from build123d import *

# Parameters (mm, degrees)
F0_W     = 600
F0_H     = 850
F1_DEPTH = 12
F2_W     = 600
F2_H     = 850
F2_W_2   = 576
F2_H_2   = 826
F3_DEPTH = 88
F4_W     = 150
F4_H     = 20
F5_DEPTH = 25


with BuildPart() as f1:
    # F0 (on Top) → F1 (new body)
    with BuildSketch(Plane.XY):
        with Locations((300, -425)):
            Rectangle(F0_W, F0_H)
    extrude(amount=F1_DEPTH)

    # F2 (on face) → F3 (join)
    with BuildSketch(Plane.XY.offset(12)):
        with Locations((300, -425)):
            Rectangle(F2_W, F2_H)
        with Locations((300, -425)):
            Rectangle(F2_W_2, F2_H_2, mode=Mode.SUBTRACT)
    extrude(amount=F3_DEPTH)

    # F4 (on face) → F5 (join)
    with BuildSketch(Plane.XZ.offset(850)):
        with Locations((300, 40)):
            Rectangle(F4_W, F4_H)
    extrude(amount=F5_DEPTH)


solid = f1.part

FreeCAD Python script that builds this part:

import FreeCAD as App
import Part
import Sketcher
from FreeCAD import Vector
Q = App.Units.Quantity

doc = App.newDocument("Part")
body = doc.addObject("PartDesign::Body", "Body")

# Sketch on XY plane
sketch1 = body.newObject("Sketcher::SketchObject", "Sketch")
sketch1.AttachmentSupport = (doc.getObject("XY_Plane"), [""])
sketch1.MapMode = "FlatFace"
sketch1.addGeometry([
    Part.LineSegment(Vector(0, 0, 0), Vector(0, -850, 0)),
    Part.LineSegment(Vector(0, -850, 0), Vector(600, -850, 0)),
    Part.LineSegment(Vector(600, -850, 0), Vector(600, 0, 0)),
    Part.LineSegment(Vector(600, 0, 0), Vector(0, 0, 0)),
], False)
sketch1.addConstraint([
    Sketcher.Constraint("Coincident", 0, 2, 1, 1),
    Sketcher.Constraint("Coincident", 1, 2, 2, 1),
    Sketcher.Constraint("Coincident", 2, 2, 3, 1),
    Sketcher.Constraint("Coincident", 3, 2, 0, 1),
    Sketcher.Constraint("Vertical", 0),
    Sketcher.Constraint("Horizontal", 1),
    Sketcher.Constraint("Vertical", 2),
    Sketcher.Constraint("Horizontal", 3),
    Sketcher.Constraint("Coincident", 3, 2, -1, 1),
    Sketcher.Constraint("DistanceX", 1, 1, 1, 2, Q("600 mm")),
    Sketcher.Constraint("DistanceY", 0, 2, 0, 1, Q("850 mm")),
])
pad1 = body.newObject("PartDesign::Pad", "Pad")
pad1.Profile = sketch1
pad1.Length = 12

# Sketch on XY plane
sketch2 = body.newObject("Sketcher::SketchObject", "Sketch001")
sketch2.AttachmentSupport = (doc.getObject("XY_Plane"), [""])
sketch2.MapMode = "FlatFace"
sketch2.AttachmentOffset = App.Placement(Vector(0, 0, 12), App.Rotation())
sketch2.addGeometry([
    Part.LineSegment(Vector(0, 0, 0), Vector(0, -850, 0)),  # 0
    Part.LineSegment(Vector(0, -850, 0), Vector(600, -850, 0)),  # 1
    Part.LineSegment(Vector(600, -850, 0), Vector(600, 0, 0)),  # 2
    Part.LineSegment(Vector(600, 0, 0), Vector(0, 0, 0)),  # 3
    Part.LineSegment(Vector(588, -838, 0), Vector(12, -838, 0)),  # 4
    Part.LineSegment(Vector(12, -838, 0), Vector(12, -12, 0)),  # 5
    Part.LineSegment(Vector(12, -12, 0), Vector(588, -12, 0)),  # 6
    Part.LineSegment(Vector(588, -12, 0), Vector(588, -838, 0)),  # 7
], False)
sketch2.addConstraint([
    Sketcher.Constraint("Coincident", 0, 2, 1, 1),
    Sketcher.Constraint("Coincident", 1, 2, 2, 1),
    Sketcher.Constraint("Coincident", 2, 2, 3, 1),
    Sketcher.Constraint("Coincident", 3, 2, 0, 1),
    Sketcher.Constraint("Coincident", 4, 2, 5, 1),
    Sketcher.Constraint("Coincident", 5, 2, 6, 1),
    Sketcher.Constraint("Coincident", 6, 2, 7, 1),
    Sketcher.Constraint("Coincident", 7, 2, 4, 1),
    Sketcher.Constraint("Vertical", 0),
    Sketcher.Constraint("Horizontal", 1),
    Sketcher.Constraint("Vertical", 2),
    Sketcher.Constraint("Horizontal", 3),
    Sketcher.Constraint("Horizontal", 4),
    Sketcher.Constraint("Vertical", 5),
    Sketcher.Constraint("Horizontal", 6),
    Sketcher.Constraint("Vertical", 7),
    Sketcher.Constraint("Coincident", 3, 2, -1, 1),
    Sketcher.Constraint("DistanceX", 1, 1, 1, 2, Q("600 mm")),
    Sketcher.Constraint("DistanceX", 4, 2, 4, 1, Q("576 mm")),
    Sketcher.Constraint("DistanceY", 0, 2, 0, 1, Q("850 mm")),
    Sketcher.Constraint("DistanceY", 5, 1, 5, 2, Q("826 mm")),
    Sketcher.Constraint("DistanceX", -1, 1, 4, 2, Q("12 mm")),
    Sketcher.Constraint("DistanceY", 4, 2, -1, 1, Q("838 mm")),
])
pad2 = body.newObject("PartDesign::Pad", "Pad001")
pad2.Profile = sketch2
pad2.Length = 88

# Sketch on XZ plane
sketch3 = body.newObject("Sketcher::SketchObject", "Sketch002")
sketch3.AttachmentSupport = (doc.getObject("XZ_Plane"), [""])
sketch3.MapMode = "FlatFace"
sketch3.AttachmentOffset = App.Placement(Vector(0, 0, 850), App.Rotation())
sketch3.addGeometry([
    Part.LineSegment(Vector(225, 50, 0), Vector(225, 30, 0)),
    Part.LineSegment(Vector(225, 30, 0), Vector(375, 30, 0)),
    Part.LineSegment(Vector(375, 30, 0), Vector(375, 50, 0)),
    Part.LineSegment(Vector(375, 50, 0), Vector(225, 50, 0)),
], False)
sketch3.addConstraint([
    Sketcher.Constraint("Coincident", 0, 2, 1, 1),
    Sketcher.Constraint("Coincident", 1, 2, 2, 1),
    Sketcher.Constraint("Coincident", 2, 2, 3, 1),
    Sketcher.Constraint("Coincident", 3, 2, 0, 1),
    Sketcher.Constraint("Vertical", 0),
    Sketcher.Constraint("Horizontal", 1),
    Sketcher.Constraint("Vertical", 2),
    Sketcher.Constraint("Horizontal", 3),
    Sketcher.Constraint("DistanceX", 1, 1, 1, 2, Q("150 mm")),
    Sketcher.Constraint("DistanceY", 0, 2, 0, 1, Q("20 mm")),
    Sketcher.Constraint("DistanceX", -1, 1, 0, 2, Q("225 mm")),
    Sketcher.Constraint("DistanceY", -1, 1, 0, 2, Q("30 mm")),
])
pad3 = body.newObject("PartDesign::Pad", "Pad002")
pad3.Profile = sketch3
pad3.Length = 25

doc.recompute()
